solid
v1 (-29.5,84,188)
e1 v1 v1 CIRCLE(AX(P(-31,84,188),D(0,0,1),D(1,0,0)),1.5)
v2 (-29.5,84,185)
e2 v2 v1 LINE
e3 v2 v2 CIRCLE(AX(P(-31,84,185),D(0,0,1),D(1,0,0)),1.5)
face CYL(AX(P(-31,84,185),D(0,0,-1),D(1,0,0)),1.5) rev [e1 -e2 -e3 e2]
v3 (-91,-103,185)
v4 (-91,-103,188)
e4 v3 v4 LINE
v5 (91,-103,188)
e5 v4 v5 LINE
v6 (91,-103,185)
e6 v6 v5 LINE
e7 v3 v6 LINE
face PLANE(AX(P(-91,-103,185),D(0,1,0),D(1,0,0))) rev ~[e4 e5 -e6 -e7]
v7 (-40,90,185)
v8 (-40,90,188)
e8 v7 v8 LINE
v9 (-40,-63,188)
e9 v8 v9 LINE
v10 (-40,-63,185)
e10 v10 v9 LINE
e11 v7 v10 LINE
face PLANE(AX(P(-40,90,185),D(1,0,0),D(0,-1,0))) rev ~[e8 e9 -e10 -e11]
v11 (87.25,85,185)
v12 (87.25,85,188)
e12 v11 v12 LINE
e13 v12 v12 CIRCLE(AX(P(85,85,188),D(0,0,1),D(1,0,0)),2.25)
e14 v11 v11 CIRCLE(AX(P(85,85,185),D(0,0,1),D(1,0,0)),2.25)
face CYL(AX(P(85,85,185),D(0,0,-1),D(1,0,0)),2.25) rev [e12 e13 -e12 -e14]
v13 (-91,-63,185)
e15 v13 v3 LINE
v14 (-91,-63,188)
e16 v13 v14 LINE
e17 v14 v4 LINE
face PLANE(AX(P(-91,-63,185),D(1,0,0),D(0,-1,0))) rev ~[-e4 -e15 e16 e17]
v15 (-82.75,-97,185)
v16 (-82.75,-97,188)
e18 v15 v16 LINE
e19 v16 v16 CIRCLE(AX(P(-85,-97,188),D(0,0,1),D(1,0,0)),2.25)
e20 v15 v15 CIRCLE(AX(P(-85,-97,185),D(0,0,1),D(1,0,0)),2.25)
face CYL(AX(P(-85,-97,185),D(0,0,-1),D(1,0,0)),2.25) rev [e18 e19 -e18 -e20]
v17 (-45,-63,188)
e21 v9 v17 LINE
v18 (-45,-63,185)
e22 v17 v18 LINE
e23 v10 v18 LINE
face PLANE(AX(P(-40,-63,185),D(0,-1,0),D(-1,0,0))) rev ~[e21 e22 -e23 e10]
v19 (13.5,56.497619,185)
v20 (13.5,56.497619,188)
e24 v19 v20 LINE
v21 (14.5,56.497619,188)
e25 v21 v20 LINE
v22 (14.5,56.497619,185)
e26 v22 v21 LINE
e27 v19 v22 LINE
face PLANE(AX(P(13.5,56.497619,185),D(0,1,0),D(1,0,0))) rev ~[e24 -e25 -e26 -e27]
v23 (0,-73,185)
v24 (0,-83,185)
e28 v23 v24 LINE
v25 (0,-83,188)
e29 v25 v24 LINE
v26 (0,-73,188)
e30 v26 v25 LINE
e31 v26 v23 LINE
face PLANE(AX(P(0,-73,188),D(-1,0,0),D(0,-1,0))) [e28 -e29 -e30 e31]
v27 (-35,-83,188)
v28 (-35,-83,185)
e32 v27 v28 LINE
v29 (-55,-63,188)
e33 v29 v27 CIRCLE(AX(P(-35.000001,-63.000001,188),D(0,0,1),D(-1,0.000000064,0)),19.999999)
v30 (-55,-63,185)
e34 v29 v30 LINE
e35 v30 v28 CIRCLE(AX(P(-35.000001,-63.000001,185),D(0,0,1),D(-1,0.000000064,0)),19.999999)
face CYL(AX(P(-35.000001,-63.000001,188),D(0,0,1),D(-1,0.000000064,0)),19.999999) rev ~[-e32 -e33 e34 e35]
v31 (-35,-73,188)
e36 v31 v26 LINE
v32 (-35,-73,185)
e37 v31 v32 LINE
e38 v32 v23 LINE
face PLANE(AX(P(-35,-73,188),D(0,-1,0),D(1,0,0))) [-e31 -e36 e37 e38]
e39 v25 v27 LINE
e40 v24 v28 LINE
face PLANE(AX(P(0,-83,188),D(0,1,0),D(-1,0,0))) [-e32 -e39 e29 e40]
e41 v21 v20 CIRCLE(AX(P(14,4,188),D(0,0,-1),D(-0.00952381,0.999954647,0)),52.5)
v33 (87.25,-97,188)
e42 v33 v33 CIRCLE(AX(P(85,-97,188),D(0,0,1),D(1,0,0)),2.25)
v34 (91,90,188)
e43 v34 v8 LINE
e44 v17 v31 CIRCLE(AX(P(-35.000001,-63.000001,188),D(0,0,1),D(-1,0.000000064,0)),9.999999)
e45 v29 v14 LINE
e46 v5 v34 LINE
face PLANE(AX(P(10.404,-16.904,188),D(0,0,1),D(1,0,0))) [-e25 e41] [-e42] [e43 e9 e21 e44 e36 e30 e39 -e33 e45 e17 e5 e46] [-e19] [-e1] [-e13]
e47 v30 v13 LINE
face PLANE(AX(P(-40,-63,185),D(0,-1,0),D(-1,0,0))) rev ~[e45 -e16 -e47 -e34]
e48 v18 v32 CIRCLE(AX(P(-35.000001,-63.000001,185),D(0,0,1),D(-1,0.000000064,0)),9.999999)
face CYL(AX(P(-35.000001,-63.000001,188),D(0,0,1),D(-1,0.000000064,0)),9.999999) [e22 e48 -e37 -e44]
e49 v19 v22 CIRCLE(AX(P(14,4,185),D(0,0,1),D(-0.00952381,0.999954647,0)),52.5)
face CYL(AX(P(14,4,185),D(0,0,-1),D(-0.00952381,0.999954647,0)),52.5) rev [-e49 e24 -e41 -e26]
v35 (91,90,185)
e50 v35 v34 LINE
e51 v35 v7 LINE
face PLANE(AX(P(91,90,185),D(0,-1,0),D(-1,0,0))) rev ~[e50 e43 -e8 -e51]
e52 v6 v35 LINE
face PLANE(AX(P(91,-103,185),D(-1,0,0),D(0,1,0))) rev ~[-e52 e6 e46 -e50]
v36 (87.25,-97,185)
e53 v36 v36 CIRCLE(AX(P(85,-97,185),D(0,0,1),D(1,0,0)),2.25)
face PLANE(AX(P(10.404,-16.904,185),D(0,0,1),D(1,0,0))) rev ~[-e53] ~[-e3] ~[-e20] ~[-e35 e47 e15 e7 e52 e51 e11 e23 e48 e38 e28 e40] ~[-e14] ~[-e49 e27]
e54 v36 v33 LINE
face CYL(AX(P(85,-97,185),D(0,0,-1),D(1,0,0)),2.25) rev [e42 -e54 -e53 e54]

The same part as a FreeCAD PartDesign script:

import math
import FreeCAD as App
import Part
import Sketcher
from FreeCAD import Vector
Q = App.Units.Quantity

doc = App.newDocument("Part")
body = doc.addObject("PartDesign::Body", "Body")

# Sketch on XY plane
sketch1 = body.newObject("Sketcher::SketchObject", "Sketch")
sketch1.AttachmentSupport = (doc.getObject("XY_Plane"), [""])
sketch1.MapMode = "FlatFace"
sketch1.addGeometry(Part.LineSegment(Vector(91, 90, 0), Vector(-40, 90, 0)), False)
sketch1.addGeometry(Part.LineSegment(Vector(-40, 90, 0), Vector(-40, -63, 0)), False)
sketch1.addGeometry(Part.LineSegment(Vector(-40, -63, 0), Vector(-91, -63, 0)), False)
sketch1.addGeometry(Part.LineSegment(Vector(-91, -63, 0), Vector(-91, -103, 0)), False)
sketch1.addGeometry(Part.LineSegment(Vector(-91, -103, 0), Vector(91, -103, 0)), False)
sketch1.addGeometry(Part.LineSegment(Vector(91, -103, 0), Vector(91, 90, 0)), False)
sketch1.addGeometry(Part.Circle(Vector(-85, -97, 0), Vector(0, 0, 1), 2.2), False)
sketch1.addGeometry(Part.Circle(Vector(85, -97, 0), Vector(0, 0, 1), 2.2), False)
sketch1.addGeometry(Part.Circle(Vector(-31, 84, 0), Vector(0, 0, 1), 1.5), False)
sketch1.addGeometry(Part.Circle(Vector(85, 85, 0), Vector(0, 0, 1), 2.2), False)
sketch1.addConstraint(Sketcher.Constraint("Coincident", 0, 2, 1, 1))
sketch1.addConstraint(Sketcher.Constraint("Coincident", 1, 2, 2, 1))
sketch1.addConstraint(Sketcher.Constraint("Coincident", 2, 2, 3, 1))
sketch1.addConstraint(Sketcher.Constraint("Coincident", 3, 2, 4, 1))
sketch1.addConstraint(Sketcher.Constraint("Coincident", 4, 2, 5, 1))
sketch1.addConstraint(Sketcher.Constraint("Coincident", 5, 2, 0, 1))
sketch1.addConstraint(Sketcher.Constraint("Horizontal", 0))
sketch1.addConstraint(Sketcher.Constraint("Vertical", 1))
sketch1.addConstraint(Sketcher.Constraint("Horizontal", 2))
sketch1.addConstraint(Sketcher.Constraint("Vertical", 3))
sketch1.addConstraint(Sketcher.Constraint("Horizontal", 4))
sketch1.addConstraint(Sketcher.Constraint("Vertical", 5))
sketch1.addConstraint(Sketcher.Constraint("Equal", 6, 7))
sketch1.addConstraint(Sketcher.Constraint("Equal", 7, 9))
sketch1.addConstraint(Sketcher.Constraint("Symmetric", 6, 3, 7, 3, -2))
sketch1.addConstraint(Sketcher.Constraint("Vertical", 7, 3, 9, 3))
sketch1.addConstraint(Sketcher.Constraint("Diameter", 8, Q("3 mm")))
sketch1.addConstraint(Sketcher.Constraint("Diameter", 6, Q("4.5 mm")))
sketch1.addConstraint(Sketcher.Constraint("DistanceX", 0, 2, 0, 1, Q("131 mm")))
sketch1.addConstraint(Sketcher.Constraint("DistanceX", 2, 2, 2, 1, Q("51 mm")))
sketch1.addConstraint(Sketcher.Constraint("DistanceY", 1, 2, 1, 1, Q("153 mm")))
sketch1.addConstraint(Sketcher.Constraint("DistanceY", 3, 2, 3, 1, Q("40 mm")))
sketch1.addConstraint(Sketcher.Constraint("DistanceX", 6, 3, -1, 1, Q("85 mm")))
sketch1.addConstraint(Sketcher.Constraint("DistanceY", 6, 3, -1, 1, Q("97 mm")))
sketch1.addConstraint(Sketcher.Constraint("DistanceX", 8, 3, -1, 1, Q("31 mm")))
sketch1.addConstraint(Sketcher.Constraint("DistanceY", -1, 1, 8, 3, Q("84 mm")))
sketch1.addConstraint(Sketcher.Constraint("DistanceY", -1, 1, 9, 3, Q("85 mm")))
sketch1.addConstraint(Sketcher.Constraint("DistanceX", 0, 2, -1, 1, Q("40 mm")))
sketch1.addConstraint(Sketcher.Constraint("DistanceY", -1, 1, 0, 2, Q("90 mm")))
pad1 = body.newObject("PartDesign::Pad", "Pad")
pad1.Profile = sketch1
pad1.Length = 3

# Sketch on XY plane
sketch2 = body.newObject("Sketcher::SketchObject", "Sketch001")
sketch2.AttachmentSupport = (doc.getObject("XY_Plane"), [""])
sketch2.MapMode = "FlatFace"
sketch2.addGeometry(Part.ArcOfCircle(Part.Circle(Vector(14, 4, 0), Vector(0, 0, 1), 52.5), math.radians(91), math.radians(449)), False)
sketch2.addGeometry(Part.LineSegment(Vector(14.5, 56.5, 0), Vector(13.5, 56.5, 0)), False)
sketch2.addConstraint(Sketcher.Constraint("Coincident", 0, 1, 1, 2))
sketch2.addConstraint(Sketcher.Constraint("Coincident", 1, 1, 0, 2))
sketch2.addConstraint(Sketcher.Constraint("Horizontal", 1))
sketch2.addConstraint(Sketcher.Constraint("Radius", 0, Q("52.5 mm")))
sketch2.addConstraint(Sketcher.Constraint("DistanceX", 1, 2, 1, 1, Q("1 mm")))
sketch2.addConstraint(Sketcher.Constraint("DistanceX", -1, 1, 0, 3, Q("14 mm")))
sketch2.addConstraint(Sketcher.Constraint("DistanceY", -1, 1, 0, 3, Q("4 mm")))
pocket1 = body.newObject("PartDesign::Pocket", "Pocket")
pocket1.Profile = sketch2
pocket1.Type = "ThroughAll"
pocket1.Midplane = True

# Sketch on XY plane
sketch3 = body.newObject("Sketcher::SketchObject", "Sketch002")
sketch3.AttachmentSupport = (doc.getObject("XY_Plane"), [""])
sketch3.MapMode = "FlatFace"
sketch3.AttachmentOffset = App.Placement(Vector(0, 0, 3), App.Rotation())
sketch3.addGeometry(Part.ArcOfCircle(Part.Circle(Vector(-35, -63, 0), Vector(0, 0, 1), 20), math.radians(180), math.radians(270)), False)
sketch3.addGeometry(Part.LineSegment(Vector(-35, -83, 0), Vector(0, -83, 0)), False)
sketch3.addGeometry(Part.LineSegment(Vector(0, -83, 0), Vector(0, -73, 0)), False)
sketch3.addGeometry(Part.LineSegment(Vector(0, -73, 0), Vector(-35, -73, 0)), False)
sketch3.addGeometry(Part.ArcOfCircle(Part.Circle(Vector(-35, -63, 0), Vector(0, 0, 1), 10), math.radians(180), math.radians(270)), False)
sketch3.addGeometry(Part.LineSegment(Vector(-45, -63, 0), Vector(-55, -63, 0)), False)
sketch3.addConstraint(Sketcher.Constraint("Tangent", 0, 2, 1, 1))
sketch3.addConstraint(Sketcher.Constraint("Coincident", 1, 2, 2, 1))
sketch3.addConstraint(Sketcher.Constraint("Coincident", 2, 2, 3, 1))
sketch3.addConstraint(Sketcher.Constraint("Tangent", 3, 2, 4, 2))
sketch3.addConstraint(Sketcher.Constraint("Coincident", 4, 1, 5, 1))
sketch3.addConstraint(Sketcher.Constraint("Coincident", 5, 2, 0, 1))
sketch3.addConstraint(Sketcher.Constraint("Horizontal", 1))
sketch3.addConstraint(Sketcher.Constraint("Vertical", 2))
sketch3.addConstraint(Sketcher.Constraint("Horizontal", 3))
sketch3.addConstraint(Sketcher.Constraint("Horizontal", 5))
sketch3.addConstraint(Sketcher.Constraint("Coincident", 4, 3, 0, 3))
sketch3.addConstraint(Sketcher.Constraint("PointOnObject", 1, 2, -2))
sketch3.addConstraint(Sketcher.Constraint("Horizontal", 0, 3, 4, 1))
sketch3.addConstraint(Sketcher.Constraint("Radius", 0, Q("19.999999 mm")))
sketch3.addConstraint(Sketcher.Constraint("Radius", 4, Q("9.999999 mm")))
sketch3.addConstraint(Sketcher.Constraint("DistanceX", 1, 1, 1, 2, Q("35 mm")))
sketch3.addConstraint(Sketcher.Constraint("DistanceY", 0, 3, -1, 1, Q("63.000001 mm")))
pocket2 = body.newObject("PartDesign::Pocket", "Pocket001")
pocket2.Profile = sketch3
pocket2.Length = 5
body2 = doc.addObject("PartDesign::Body", "Body001")
doc.recompute()

body.Placement = App.Placement(Vector(0, 0, 185), App.Rotation(Vector(0, 0, 1), 0))
boolean = body2.newObject("PartDesign::Boolean", "Boolean")
boolean.Type = "Fuse"
boolean.addObjects([body])

doc.recompute()
